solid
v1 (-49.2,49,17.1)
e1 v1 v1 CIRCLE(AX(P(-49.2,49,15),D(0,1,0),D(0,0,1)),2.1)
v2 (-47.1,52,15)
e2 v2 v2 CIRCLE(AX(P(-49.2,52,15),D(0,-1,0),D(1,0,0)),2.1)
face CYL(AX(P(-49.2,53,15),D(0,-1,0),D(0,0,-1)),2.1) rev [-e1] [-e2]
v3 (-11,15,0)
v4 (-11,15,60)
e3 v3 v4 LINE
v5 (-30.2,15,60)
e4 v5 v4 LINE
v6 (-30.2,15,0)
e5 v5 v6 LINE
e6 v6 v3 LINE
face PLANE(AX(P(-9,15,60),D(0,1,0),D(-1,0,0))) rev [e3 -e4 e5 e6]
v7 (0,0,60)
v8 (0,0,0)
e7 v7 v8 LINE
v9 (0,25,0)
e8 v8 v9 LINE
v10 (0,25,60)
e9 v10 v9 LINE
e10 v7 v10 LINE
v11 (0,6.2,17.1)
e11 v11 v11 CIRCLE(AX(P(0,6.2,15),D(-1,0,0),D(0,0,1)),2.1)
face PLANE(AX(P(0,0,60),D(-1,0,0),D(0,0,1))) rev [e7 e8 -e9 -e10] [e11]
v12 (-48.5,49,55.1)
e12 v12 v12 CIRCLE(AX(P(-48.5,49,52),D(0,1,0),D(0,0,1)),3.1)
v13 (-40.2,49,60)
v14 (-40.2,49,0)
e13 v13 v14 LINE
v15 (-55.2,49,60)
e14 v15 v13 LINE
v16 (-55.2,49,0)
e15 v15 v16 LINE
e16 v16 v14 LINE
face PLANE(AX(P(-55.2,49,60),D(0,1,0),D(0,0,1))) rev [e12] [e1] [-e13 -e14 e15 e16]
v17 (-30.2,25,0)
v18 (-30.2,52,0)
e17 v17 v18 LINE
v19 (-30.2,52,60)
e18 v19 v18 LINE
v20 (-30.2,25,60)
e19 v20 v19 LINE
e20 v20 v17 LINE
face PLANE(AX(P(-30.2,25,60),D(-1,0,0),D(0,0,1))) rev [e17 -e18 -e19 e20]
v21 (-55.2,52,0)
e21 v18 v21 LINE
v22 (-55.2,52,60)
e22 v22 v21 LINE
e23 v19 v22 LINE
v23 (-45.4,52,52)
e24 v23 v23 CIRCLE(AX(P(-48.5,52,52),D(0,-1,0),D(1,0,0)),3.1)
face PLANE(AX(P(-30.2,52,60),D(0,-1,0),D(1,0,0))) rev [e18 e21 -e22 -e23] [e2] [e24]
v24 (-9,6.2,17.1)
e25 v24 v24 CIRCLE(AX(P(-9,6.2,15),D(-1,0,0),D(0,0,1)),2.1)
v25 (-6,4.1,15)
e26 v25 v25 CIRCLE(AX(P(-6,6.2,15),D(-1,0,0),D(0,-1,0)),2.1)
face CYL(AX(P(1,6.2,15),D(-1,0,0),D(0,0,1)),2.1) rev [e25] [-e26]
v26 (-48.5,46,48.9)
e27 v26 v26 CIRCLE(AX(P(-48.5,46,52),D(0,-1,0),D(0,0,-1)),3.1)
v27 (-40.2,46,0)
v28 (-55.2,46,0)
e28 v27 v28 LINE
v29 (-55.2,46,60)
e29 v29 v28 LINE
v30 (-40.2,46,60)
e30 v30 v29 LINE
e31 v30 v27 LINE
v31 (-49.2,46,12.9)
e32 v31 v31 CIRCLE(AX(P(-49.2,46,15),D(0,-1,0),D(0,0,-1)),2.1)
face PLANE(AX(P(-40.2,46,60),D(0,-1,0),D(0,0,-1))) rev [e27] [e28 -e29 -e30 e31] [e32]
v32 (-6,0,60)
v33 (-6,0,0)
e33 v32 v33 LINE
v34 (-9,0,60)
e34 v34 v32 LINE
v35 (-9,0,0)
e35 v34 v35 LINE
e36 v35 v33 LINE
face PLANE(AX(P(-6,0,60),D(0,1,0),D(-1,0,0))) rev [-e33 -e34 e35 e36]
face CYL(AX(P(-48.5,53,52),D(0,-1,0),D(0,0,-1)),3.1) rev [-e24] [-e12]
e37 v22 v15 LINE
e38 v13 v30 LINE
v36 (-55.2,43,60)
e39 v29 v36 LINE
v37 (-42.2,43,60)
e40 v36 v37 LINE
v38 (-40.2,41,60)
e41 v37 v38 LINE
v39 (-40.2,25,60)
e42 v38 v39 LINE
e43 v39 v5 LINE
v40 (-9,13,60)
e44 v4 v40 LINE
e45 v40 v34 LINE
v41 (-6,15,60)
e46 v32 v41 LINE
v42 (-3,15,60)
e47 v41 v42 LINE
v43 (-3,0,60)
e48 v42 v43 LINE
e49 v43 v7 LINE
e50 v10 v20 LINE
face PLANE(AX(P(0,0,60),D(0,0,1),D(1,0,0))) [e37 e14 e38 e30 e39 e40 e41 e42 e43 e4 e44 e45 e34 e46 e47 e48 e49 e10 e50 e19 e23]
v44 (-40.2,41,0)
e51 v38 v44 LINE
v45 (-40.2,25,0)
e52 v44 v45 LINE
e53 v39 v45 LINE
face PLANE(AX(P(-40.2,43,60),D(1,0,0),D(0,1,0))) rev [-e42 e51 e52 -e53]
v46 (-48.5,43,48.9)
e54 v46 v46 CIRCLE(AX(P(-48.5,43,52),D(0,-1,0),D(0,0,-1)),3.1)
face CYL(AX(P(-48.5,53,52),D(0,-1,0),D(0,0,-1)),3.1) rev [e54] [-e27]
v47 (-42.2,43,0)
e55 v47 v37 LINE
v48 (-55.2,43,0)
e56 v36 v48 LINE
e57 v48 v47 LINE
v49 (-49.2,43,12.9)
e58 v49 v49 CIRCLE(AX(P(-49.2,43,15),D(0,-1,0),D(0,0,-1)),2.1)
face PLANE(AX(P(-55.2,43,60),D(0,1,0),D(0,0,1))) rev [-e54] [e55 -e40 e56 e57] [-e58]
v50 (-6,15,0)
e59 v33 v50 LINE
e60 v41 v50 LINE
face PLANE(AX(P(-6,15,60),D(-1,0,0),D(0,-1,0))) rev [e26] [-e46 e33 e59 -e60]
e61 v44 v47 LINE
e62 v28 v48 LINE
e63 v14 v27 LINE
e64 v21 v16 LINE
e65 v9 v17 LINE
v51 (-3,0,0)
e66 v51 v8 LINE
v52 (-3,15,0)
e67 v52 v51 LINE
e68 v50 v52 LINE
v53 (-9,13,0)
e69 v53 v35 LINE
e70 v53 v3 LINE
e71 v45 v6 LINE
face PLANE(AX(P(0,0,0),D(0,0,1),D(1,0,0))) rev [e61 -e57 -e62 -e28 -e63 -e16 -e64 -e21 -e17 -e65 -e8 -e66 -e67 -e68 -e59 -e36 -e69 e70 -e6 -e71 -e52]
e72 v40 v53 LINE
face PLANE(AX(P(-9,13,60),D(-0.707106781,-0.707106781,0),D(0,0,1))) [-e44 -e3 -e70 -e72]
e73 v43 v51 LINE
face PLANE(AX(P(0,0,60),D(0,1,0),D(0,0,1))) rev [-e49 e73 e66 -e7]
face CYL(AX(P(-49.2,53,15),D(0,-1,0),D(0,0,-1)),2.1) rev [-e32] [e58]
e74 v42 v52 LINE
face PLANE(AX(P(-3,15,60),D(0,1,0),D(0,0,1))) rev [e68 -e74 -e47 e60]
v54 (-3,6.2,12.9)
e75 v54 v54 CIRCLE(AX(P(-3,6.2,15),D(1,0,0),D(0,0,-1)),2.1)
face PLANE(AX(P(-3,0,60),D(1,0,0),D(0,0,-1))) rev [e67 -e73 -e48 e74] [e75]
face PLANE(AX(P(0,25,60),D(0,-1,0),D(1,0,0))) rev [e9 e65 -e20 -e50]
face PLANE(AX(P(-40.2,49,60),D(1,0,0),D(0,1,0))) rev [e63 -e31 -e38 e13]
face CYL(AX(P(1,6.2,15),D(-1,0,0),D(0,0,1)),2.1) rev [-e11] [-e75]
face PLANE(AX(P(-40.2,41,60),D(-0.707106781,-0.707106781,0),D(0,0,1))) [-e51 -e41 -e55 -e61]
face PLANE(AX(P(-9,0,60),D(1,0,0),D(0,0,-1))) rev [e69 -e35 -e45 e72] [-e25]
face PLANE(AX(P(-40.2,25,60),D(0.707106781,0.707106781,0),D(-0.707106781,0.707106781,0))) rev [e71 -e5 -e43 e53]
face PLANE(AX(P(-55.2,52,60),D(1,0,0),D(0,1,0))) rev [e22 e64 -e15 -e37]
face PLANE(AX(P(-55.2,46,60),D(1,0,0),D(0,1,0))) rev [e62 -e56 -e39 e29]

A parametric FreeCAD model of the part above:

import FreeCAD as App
import Part
import Sketcher

V = App.Vector


def edges_at(feature, points):
    """Names of the edges that pass closest to the given points."""
    edges = feature.Shape.Edges
    near = lambda p: min(range(len(edges)), key=lambda i: edges[i].distToShape(Part.Vertex(*p))[0])
    return sorted({f"Edge{near(p) + 1}" for p in points})


def add_polygon(sketch, points):
    """Adds a closed chain of lines whose ends are joined by coincident constraints."""
    first, n = sketch.GeometryCount, len(points)
    for a, b in zip(points, points[1:] + points[:1]):
        sketch.addGeometry(Part.LineSegment(App.Vector(*a, 0), App.Vector(*b, 0)), False)
    for i in range(n):
        sketch.addConstraint(Sketcher.Constraint("Coincident", first + i, 2, first + (i + 1) % n, 1))

doc = App.newDocument("Part")
params = doc.addObject("Spreadsheet::Sheet", "Params")
for row, (alias, value) in enumerate([
    ("sketch1_width", "3 mm"),
    ("sketch1_width2", "25 mm"),
    ("sketch1_width3", "15 mm"),
    ("sketch1_height", "27 mm"),
    ("sketch1_width4", "30.2 mm"),
    ("pad1_length", "60 mm"),
    ("chamfer_size", "2 mm"),
    ("sketch2_diameter", "6.2 mm"),
    ("pocket1_length", "10 mm"),
    ("sketch3_diameter", "4.2 mm"),
    ("pocket2_length", "10 mm"),
    ("sketch4_diameter", "4.2 mm"),
    ("pocket3_length", "10 mm"),
], start=1):
    params.set(f"A{row}", alias)
    params.set(f"B{row}", "=" + value)
    params.setAlias(f"B{row}", alias)

body = doc.addObject("PartDesign::Body", "Body")

# Sketch on XY plane
sketch1 = body.newObject("Sketcher::SketchObject", "Sketch")
sketch1.AttachmentSupport = (doc.getObject("XY_Plane"), [""])
sketch1.MapMode = "FlatFace"
add_polygon(sketch1, [(-3, 0), (0, 0), (0, 25), (-30.2, 25), (-30.2, 52), (-55.2, 52), (-55.2, 49), (-40.2, 49), (-40.2, 46), (-55.2, 46), (-55.2, 43), (-40.2, 43), (-40.2, 25), (-30.2, 15), (-9, 15), (-9, 0), (-6, 0), (-6, 15), (-3, 15)])  # lines 0-18
sketch1.addConstraint([
    Sketcher.Constraint("Horizontal", 0),
    Sketcher.Constraint("Vertical", 1),
    Sketcher.Constraint("Horizontal", 2),
    Sketcher.Constraint("Vertical", 3),
    Sketcher.Constraint("Horizontal", 4),
    Sketcher.Constraint("Vertical", 5),
    Sketcher.Constraint("Horizontal", 6),
    Sketcher.Constraint("Vertical", 7),
    Sketcher.Constraint("Horizontal", 8),
    Sketcher.Constraint("Vertical", 9),
    Sketcher.Constraint("Horizontal", 10),
    Sketcher.Constraint("Vertical", 11),
    Sketcher.Constraint("Horizontal", 13),
    Sketcher.Constraint("Vertical", 14),
    Sketcher.Constraint("Horizontal", 15),
    Sketcher.Constraint("Vertical", 16),
    Sketcher.Constraint("Horizontal", 17),
    Sketcher.Constraint("Vertical", 18),
    Sketcher.Constraint("Coincident", 0, 2, -1, 1),
    Sketcher.Constraint("PointOnObject", 14, 2, -1),
    Sketcher.Constraint("Horizontal", 2, 2, 11, 2),
    Sketcher.Constraint("Horizontal", 13, 2, 16, 2),
    Sketcher.Constraint("Vertical", 5, 2, 8, 2),
    Sketcher.Constraint("Vertical", 7, 2, 10, 2),
    Sketcher.Constraint("Vertical", 3, 2, 12, 2),
    Sketcher.Constraint("Equal", 0, 15),
    Sketcher.Constraint("Equal", 15, 17),
    Sketcher.Constraint("Equal", 4, 1),
    Sketcher.Constraint("Equal", 17, 5),
    Sketcher.Constraint("Equal", 5, 7),
    Sketcher.Constraint("Equal", 7, 9),
    Sketcher.Constraint("Equal", 10, 14),
    Sketcher.Constraint("DistanceX", 0, 1, 0, 2, 3.0),
    Sketcher.Constraint("DistanceX", 4, 2, 4, 1, 25.0),
    Sketcher.Constraint("DistanceX", 6, 1, 6, 2, 15.0),
    Sketcher.Constraint("DistanceY", 3, 1, 3, 2, 27.0),
    Sketcher.Constraint("DistanceX", 2, 2, 2, 1, 30.2),
])
sketch1.setExpression("Constraints[51]", "Params.sketch1_width")
sketch1.setExpression("Constraints[52]", "Params.sketch1_width2")
sketch1.setExpression("Constraints[53]", "Params.sketch1_width3")
sketch1.setExpression("Constraints[54]", "Params.sketch1_height")
sketch1.setExpression("Constraints[55]", "Params.sketch1_width4")
pad1 = body.newObject("PartDesign::Pad", "Pad")
pad1.Profile = sketch1
pad1.setExpression("Length", "Params.pad1_length")
doc.recompute()

chamfer = body.newObject("PartDesign::Chamfer", "Chamfer")
chamfer.Base = (pad1, edges_at(pad1, [(-9, 15, 30), (-40.2, 43, 30)]))
chamfer.setExpression("Size", "Params.chamfer_size")

# Sketch on XZ plane
sketch2 = body.newObject("Sketcher::SketchObject", "Sketch001")
sketch2.AttachmentSupport = (doc.getObject("XZ_Plane"), [""])
sketch2.MapMode = "FlatFace"
sketch2.AttachmentOffset = App.Placement(V(0, 0, -43), App.Rotation())
sketch2.addGeometry(Part.Circle(V(-48.5, 52, 0), V(0, 0, 1), 3.1), False)
sketch2.addConstraint([
    Sketcher.Constraint("Diameter", 0, 6.2),
    Sketcher.Constraint("DistanceY", -1, 1, 0, 3, 52.0),
    Sketcher.Constraint("DistanceX", 0, 3, -1, 1, 48.5),
])
sketch2.setExpression("Constraints[0]", "Params.sketch2_diameter")
pocket1 = body.newObject("PartDesign::Pocket", "Pocket")
pocket1.Profile = sketch2
pocket1.setExpression("Length", "Params.pocket1_length")

# Sketch on XZ plane
sketch3 = body.newObject("Sketcher::SketchObject", "Sketch002")
sketch3.AttachmentSupport = (doc.getObject("XZ_Plane"), [""])
sketch3.MapMode = "FlatFace"
sketch3.AttachmentOffset = App.Placement(V(0, 0, -43), App.Rotation())
sketch3.addGeometry(Part.Circle(V(-49.2, 15, 0), V(0, 0, 1), 2.1), False)
sketch3.addConstraint([
    Sketcher.Constraint("Diameter", 0, 4.2),
    Sketcher.Constraint("DistanceY", -1, 1, 0, 3, 15.0),
    Sketcher.Constraint("DistanceX", 0, 3, -1, 1, 49.2),
])
sketch3.setExpression("Constraints[0]", "Params.sketch3_diameter")
pocket2 = body.newObject("PartDesign::Pocket", "Pocket001")
pocket2.Profile = sketch3
pocket2.setExpression("Length", "Params.pocket2_length")

# Sketch on YZ plane
sketch4 = body.newObject("Sketcher::SketchObject", "Sketch003")
sketch4.AttachmentSupport = (doc.getObject("YZ_Plane"), [""])
sketch4.MapMode = "FlatFace"
sketch4.AttachmentOffset = App.Placement(V(0, 0, -9), App.Rotation())
sketch4.addGeometry(Part.Circle(V(6.2, 15, 0), V(0, 0, 1), 2.1), False)
sketch4.addConstraint([
    Sketcher.Constraint("Diameter", 0, 4.2),
    Sketcher.Constraint("DistanceY", -1, 1, 0, 3, 15.0),
    Sketcher.Constraint("DistanceX", -1, 1, 0, 3, 6.2),
])
sketch4.setExpression("Constraints[0]", "Params.sketch4_diameter")
pocket3 = body.newObject("PartDesign::Pocket", "Pocket002")
pocket3.Profile = sketch4
pocket3.setExpression("Length", "Params.pocket3_length")
pocket3.Reversed = True

doc.recompute()
